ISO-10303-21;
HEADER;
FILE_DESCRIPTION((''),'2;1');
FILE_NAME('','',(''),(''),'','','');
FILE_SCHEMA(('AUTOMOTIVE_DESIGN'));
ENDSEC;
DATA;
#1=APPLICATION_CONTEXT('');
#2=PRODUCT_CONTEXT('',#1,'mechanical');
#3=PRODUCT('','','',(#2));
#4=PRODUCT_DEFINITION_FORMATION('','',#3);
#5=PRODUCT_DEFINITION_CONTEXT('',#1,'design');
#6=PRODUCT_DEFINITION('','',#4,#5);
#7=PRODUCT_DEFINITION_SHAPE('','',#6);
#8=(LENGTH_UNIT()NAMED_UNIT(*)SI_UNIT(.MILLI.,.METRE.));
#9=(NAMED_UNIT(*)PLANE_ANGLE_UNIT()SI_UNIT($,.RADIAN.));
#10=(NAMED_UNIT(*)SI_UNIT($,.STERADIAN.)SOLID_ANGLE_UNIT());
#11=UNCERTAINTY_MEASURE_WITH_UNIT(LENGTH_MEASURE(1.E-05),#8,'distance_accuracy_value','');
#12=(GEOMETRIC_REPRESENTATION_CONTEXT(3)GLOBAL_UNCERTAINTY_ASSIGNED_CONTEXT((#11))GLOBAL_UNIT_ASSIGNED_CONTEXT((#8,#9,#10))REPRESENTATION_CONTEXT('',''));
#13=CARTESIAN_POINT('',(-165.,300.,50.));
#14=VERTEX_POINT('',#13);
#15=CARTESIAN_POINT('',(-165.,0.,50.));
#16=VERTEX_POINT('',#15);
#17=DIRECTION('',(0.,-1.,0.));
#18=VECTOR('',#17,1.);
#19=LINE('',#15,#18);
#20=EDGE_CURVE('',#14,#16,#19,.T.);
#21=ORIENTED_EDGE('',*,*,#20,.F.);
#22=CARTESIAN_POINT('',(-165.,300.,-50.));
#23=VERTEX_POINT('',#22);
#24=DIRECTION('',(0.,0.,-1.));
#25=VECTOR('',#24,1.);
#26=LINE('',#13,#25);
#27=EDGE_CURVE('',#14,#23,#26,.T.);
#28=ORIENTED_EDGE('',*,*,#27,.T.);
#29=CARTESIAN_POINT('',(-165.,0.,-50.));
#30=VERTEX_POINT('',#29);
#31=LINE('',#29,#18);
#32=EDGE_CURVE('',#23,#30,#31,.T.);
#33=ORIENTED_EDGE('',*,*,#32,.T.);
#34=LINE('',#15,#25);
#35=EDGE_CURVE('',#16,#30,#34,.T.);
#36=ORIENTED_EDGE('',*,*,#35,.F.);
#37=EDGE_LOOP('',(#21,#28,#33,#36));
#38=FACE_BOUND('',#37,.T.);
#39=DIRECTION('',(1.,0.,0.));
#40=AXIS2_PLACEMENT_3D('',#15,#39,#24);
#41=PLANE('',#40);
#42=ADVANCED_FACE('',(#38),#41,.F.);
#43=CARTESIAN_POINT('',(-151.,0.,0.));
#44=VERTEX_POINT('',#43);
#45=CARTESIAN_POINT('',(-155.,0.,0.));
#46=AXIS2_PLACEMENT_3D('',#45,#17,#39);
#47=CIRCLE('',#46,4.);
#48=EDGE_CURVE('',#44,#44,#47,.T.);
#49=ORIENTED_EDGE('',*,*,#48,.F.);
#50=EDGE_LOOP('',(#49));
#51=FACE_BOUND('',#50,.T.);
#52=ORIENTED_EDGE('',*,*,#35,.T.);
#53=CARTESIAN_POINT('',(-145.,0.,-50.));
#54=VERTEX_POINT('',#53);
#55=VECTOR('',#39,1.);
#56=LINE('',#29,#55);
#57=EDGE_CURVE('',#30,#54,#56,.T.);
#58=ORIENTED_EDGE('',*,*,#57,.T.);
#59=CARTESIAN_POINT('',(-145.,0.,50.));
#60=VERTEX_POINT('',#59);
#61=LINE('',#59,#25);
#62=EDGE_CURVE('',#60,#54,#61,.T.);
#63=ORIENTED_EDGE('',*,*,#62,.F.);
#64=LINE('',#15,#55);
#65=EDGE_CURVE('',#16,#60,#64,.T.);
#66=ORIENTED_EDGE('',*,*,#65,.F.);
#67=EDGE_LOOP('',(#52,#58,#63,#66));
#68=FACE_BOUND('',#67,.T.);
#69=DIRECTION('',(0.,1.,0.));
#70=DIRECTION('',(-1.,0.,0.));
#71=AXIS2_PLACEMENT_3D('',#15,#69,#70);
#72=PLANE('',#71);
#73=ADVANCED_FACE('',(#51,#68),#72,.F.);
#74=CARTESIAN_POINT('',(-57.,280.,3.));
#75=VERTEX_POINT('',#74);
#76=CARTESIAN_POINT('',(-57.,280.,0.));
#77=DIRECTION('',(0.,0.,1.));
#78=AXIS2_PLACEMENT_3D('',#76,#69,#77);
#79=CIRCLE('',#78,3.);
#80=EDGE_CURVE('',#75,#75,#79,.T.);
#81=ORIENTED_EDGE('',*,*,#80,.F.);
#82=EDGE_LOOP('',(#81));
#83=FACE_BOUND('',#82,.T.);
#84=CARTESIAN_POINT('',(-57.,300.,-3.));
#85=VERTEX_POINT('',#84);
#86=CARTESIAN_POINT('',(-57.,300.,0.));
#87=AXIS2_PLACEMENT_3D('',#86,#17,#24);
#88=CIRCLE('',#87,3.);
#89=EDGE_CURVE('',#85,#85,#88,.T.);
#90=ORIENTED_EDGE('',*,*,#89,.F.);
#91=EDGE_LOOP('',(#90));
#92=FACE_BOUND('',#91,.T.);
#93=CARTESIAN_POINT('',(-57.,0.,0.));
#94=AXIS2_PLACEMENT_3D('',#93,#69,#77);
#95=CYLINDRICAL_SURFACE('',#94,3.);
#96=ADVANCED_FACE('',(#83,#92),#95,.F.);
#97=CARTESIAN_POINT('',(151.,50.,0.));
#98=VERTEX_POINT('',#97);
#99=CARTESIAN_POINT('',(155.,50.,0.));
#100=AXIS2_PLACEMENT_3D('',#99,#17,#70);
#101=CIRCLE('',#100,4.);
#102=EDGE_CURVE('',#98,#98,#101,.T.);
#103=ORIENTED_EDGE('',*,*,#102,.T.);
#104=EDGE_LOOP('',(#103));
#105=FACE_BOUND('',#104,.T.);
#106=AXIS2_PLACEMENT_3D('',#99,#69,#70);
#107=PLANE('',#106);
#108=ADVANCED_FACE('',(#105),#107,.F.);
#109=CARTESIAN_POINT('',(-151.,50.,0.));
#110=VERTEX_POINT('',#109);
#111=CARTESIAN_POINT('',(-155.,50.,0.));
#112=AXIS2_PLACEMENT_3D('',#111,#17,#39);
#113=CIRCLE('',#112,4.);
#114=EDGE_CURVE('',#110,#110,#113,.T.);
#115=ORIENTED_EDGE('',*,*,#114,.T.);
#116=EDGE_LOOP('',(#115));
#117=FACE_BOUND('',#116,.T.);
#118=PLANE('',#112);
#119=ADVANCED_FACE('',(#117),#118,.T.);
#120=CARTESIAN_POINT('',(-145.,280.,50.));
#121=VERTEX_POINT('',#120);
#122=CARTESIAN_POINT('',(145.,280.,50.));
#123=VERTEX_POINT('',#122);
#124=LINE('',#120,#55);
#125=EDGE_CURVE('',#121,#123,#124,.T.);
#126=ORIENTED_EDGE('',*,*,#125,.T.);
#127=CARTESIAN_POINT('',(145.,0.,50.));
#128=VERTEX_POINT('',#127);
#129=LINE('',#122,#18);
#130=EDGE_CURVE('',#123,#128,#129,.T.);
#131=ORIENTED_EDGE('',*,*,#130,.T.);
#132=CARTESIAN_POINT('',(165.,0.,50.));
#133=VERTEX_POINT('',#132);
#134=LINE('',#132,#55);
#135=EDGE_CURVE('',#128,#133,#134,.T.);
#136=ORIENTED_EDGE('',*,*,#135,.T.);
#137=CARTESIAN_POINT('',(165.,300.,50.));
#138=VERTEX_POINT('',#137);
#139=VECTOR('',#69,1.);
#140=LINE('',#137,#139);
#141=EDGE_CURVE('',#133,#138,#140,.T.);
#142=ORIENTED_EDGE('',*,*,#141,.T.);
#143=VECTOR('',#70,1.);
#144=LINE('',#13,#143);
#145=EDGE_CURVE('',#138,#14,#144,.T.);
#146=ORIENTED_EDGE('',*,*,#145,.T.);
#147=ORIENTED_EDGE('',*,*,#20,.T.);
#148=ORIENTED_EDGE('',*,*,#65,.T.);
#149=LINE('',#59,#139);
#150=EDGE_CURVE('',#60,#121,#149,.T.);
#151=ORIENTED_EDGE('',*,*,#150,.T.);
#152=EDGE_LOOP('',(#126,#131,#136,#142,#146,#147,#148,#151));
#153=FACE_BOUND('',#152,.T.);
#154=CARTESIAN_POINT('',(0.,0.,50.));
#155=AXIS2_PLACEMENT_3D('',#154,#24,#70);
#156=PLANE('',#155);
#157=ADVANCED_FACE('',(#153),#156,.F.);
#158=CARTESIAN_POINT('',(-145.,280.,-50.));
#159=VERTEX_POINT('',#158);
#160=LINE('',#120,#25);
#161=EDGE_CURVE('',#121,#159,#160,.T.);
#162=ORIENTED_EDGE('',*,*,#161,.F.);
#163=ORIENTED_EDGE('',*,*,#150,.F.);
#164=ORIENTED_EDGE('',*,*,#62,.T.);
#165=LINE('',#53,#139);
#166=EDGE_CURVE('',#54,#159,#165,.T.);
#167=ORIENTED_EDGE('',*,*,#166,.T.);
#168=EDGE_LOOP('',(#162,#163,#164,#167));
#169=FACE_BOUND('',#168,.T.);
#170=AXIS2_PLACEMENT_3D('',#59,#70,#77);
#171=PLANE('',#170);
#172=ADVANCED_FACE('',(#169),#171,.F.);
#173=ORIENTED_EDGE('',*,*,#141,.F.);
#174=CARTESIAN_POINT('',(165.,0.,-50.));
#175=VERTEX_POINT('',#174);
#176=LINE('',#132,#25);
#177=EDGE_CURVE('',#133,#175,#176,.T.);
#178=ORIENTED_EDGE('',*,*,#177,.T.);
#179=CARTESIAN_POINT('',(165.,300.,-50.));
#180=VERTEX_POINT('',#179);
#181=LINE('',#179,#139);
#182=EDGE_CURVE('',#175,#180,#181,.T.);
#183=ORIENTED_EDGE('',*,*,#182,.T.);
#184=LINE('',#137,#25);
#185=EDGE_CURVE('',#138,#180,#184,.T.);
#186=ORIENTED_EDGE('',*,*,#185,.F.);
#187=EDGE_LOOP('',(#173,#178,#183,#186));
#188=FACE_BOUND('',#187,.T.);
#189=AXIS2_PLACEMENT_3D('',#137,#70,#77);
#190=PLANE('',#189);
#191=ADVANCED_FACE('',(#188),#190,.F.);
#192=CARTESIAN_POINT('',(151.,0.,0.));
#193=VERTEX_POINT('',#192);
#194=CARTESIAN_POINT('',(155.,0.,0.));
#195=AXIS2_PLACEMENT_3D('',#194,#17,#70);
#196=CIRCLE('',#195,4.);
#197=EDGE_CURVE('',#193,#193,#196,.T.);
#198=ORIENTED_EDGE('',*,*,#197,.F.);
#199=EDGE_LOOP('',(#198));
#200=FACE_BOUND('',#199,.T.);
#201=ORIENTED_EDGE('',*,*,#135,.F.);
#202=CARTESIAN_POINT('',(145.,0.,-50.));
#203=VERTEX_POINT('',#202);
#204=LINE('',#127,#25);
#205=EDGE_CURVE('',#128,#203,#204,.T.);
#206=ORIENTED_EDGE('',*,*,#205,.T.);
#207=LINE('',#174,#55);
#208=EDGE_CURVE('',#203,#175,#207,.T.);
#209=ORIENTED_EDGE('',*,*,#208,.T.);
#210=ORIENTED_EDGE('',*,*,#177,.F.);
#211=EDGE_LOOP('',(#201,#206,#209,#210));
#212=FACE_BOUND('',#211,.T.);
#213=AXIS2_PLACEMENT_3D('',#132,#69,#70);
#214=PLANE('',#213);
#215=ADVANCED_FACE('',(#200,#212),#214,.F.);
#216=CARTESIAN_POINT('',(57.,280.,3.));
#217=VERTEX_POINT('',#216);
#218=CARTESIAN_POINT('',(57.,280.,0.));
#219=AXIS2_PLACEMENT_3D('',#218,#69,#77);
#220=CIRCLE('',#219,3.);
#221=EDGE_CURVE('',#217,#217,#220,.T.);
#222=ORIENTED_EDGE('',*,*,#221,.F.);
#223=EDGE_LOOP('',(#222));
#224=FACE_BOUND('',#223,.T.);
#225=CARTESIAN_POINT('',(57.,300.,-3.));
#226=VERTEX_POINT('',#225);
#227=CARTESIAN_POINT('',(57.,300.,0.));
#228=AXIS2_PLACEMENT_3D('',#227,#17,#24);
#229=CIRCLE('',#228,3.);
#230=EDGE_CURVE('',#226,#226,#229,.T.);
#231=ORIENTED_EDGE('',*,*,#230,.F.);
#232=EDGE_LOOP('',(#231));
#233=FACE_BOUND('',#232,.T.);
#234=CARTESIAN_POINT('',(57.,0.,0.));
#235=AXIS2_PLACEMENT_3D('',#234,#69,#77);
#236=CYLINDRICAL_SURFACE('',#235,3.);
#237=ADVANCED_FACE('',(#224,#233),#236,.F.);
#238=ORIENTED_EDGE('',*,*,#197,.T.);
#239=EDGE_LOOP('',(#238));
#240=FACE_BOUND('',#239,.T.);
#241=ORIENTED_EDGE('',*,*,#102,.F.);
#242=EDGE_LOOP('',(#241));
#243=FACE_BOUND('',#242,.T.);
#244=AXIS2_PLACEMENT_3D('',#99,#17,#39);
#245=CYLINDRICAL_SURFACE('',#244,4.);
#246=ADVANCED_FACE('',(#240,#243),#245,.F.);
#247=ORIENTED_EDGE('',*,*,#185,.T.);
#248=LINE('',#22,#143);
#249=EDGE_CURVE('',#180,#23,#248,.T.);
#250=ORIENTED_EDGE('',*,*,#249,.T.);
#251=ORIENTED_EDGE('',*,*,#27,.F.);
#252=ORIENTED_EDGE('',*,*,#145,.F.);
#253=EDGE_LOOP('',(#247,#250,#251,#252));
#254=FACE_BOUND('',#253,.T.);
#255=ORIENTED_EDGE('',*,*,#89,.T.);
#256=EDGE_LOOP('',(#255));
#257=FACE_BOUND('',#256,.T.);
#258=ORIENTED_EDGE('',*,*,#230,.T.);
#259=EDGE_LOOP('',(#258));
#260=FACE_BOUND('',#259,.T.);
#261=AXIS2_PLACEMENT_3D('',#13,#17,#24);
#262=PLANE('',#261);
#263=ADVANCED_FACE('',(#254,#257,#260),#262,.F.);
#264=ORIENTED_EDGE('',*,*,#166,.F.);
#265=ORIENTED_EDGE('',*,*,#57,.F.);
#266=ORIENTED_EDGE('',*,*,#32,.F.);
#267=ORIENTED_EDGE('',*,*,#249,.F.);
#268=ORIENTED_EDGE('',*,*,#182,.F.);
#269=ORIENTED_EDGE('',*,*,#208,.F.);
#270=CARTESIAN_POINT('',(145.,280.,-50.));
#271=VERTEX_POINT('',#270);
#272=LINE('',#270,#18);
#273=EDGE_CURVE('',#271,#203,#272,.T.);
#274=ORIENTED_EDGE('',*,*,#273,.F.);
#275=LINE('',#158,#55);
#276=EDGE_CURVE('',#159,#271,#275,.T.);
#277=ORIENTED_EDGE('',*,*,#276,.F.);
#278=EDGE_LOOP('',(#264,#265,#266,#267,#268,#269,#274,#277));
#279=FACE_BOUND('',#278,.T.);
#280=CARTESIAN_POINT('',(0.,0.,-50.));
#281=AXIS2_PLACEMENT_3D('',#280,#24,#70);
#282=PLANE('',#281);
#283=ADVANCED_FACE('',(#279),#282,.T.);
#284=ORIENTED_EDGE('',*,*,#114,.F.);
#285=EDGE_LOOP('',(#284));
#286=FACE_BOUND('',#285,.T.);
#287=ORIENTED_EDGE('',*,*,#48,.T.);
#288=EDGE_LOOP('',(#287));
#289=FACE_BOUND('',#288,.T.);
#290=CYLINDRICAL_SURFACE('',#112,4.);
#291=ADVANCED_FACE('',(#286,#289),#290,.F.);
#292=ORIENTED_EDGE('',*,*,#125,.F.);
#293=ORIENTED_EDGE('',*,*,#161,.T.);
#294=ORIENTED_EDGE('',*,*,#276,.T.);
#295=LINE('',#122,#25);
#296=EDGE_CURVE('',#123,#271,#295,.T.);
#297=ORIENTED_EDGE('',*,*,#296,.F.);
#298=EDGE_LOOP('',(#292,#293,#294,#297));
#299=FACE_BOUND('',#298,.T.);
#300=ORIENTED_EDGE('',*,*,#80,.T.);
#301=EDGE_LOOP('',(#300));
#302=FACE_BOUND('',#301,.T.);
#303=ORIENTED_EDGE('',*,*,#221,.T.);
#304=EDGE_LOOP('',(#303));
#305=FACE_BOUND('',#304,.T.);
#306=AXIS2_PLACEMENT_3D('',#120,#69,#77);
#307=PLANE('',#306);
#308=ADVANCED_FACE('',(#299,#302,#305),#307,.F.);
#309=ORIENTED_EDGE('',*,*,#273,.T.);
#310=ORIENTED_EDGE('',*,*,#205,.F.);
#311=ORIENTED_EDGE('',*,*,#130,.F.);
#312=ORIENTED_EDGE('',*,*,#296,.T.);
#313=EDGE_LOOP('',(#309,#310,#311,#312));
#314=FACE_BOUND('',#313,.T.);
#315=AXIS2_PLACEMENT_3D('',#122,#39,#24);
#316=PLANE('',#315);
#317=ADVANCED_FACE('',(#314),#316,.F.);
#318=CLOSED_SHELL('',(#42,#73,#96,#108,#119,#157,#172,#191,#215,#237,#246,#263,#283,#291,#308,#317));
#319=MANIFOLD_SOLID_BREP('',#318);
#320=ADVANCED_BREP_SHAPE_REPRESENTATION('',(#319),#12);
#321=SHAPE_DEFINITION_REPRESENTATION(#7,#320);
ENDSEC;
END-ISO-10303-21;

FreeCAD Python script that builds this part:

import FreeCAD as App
import Part
import Sketcher
from FreeCAD import Vector
Q = App.Units.Quantity


def add_polygon(sketch, points):
    """Adds a closed chain of lines whose ends are joined by coincident constraints."""
    first, n = sketch.GeometryCount, len(points)
    for a, b in zip(points, points[1:] + points[:1]):
        sketch.addGeometry(Part.LineSegment(App.Vector(*a, 0), App.Vector(*b, 0)), False)
    for i in range(n):
        sketch.addConstraint(Sketcher.Constraint("Coincident", first + i, 2, first + (i + 1) % n, 1))

doc = App.newDocument("Part")
body = doc.addObject("PartDesign::Body", "Body")

# Sketch on XY plane
sketch1 = body.newObject("Sketcher::SketchObject", "Sketch")
sketch1.AttachmentSupport = (doc.getObject("XY_Plane"), [""])
sketch1.MapMode = "FlatFace"
add_polygon(sketch1, [(-165, 0), (-145, 0), (-145, 280), (145, 280), (145, 0), (165, 0), (165, 300), (-165, 300)])  # lines 0-7
sketch1.addConstraint(Sketcher.Constraint("Horizontal", 0))
sketch1.addConstraint(Sketcher.Constraint("Vertical", 1))
sketch1.addConstraint(Sketcher.Constraint("Horizontal", 2))
sketch1.addConstraint(Sketcher.Constraint("Vertical", 3))
sketch1.addConstraint(Sketcher.Constraint("Horizontal", 4))
sketch1.addConstraint(Sketcher.Constraint("Vertical", 5))
sketch1.addConstraint(Sketcher.Constraint("Horizontal", 6))
sketch1.addConstraint(Sketcher.Constraint("Vertical", 7))
sketch1.addConstraint(Sketcher.Constraint("Symmetric", 0, 2, 3, 2, -1, 1))
sketch1.addConstraint(Sketcher.Constraint("Symmetric", 4, 2, 7, 2, -2))
sketch1.addConstraint(Sketcher.Constraint("DistanceX", 0, 1, 0, 2, Q("20 mm")))
sketch1.addConstraint(Sketcher.Constraint("DistanceX", 2, 1, 2, 2, Q("290 mm")))
sketch1.addConstraint(Sketcher.Constraint("DistanceY", 1, 1, 1, 2, Q("280 mm")))
sketch1.addConstraint(Sketcher.Constraint("DistanceY", 5, 1, 5, 2, Q("300 mm")))
pad1 = body.newObject("PartDesign::Pad", "Pad")
pad1.Profile = sketch1
pad1.Length = 100
pad1.Midplane = True

# Sketch on XZ plane
sketch2 = body.newObject("Sketcher::SketchObject", "Sketch001")
sketch2.AttachmentSupport = (doc.getObject("XZ_Plane"), [""])
sketch2.MapMode = "FlatFace"
sketch2.addGeometry(Part.Circle(Vector(-155, 0, 0), Vector(0, 0, 1), 4), False)
sketch2.addGeometry(Part.Circle(Vector(155, 0, 0), Vector(0, 0, 1), 4), False)
sketch2.addConstraint(Sketcher.Constraint("Equal", 0, 1))
sketch2.addConstraint(Sketcher.Constraint("Symmetric", 0, 3, 1, 3, -1, 1))
sketch2.addConstraint(Sketcher.Constraint("PointOnObject", 0, 3, -1))
sketch2.addConstraint(Sketcher.Constraint("Diameter", 0, Q("8 mm")))
sketch2.addConstraint(Sketcher.Constraint("DistanceX", 0, 3, -1, 1, Q("155 mm")))
pocket1 = body.newObject("PartDesign::Pocket", "Pocket")
pocket1.Profile = sketch2
pocket1.Length = 50

# Sketch on XZ plane
sketch3 = body.newObject("Sketcher::SketchObject", "Sketch002")
sketch3.AttachmentSupport = (doc.getObject("XZ_Plane"), [""])
sketch3.MapMode = "FlatFace"
sketch3.AttachmentOffset = App.Placement(Vector(0, 0, -300), App.Rotation())
sketch3.addGeometry(Part.Circle(Vector(-57, 0, 0), Vector(0, 0, 1), 3), False)
sketch3.addGeometry(Part.Circle(Vector(57, 0, 0), Vector(0, 0, 1), 3), False)
sketch3.addConstraint(Sketcher.Constraint("Equal", 0, 1))
sketch3.addConstraint(Sketcher.Constraint("Symmetric", 0, 3, 1, 3, -1, 1))
sketch3.addConstraint(Sketcher.Constraint("PointOnObject", 0, 3, -1))
sketch3.addConstraint(Sketcher.Constraint("Diameter", 0, Q("6 mm")))
sketch3.addConstraint(Sketcher.Constraint("DistanceX", 0, 3, -1, 1, Q("57 mm")))
pocket2 = body.newObject("PartDesign::Pocket", "Pocket001")
pocket2.Profile = sketch3
pocket2.Type = "ThroughAll"
pocket2.Midplane = True

doc.recompute()
